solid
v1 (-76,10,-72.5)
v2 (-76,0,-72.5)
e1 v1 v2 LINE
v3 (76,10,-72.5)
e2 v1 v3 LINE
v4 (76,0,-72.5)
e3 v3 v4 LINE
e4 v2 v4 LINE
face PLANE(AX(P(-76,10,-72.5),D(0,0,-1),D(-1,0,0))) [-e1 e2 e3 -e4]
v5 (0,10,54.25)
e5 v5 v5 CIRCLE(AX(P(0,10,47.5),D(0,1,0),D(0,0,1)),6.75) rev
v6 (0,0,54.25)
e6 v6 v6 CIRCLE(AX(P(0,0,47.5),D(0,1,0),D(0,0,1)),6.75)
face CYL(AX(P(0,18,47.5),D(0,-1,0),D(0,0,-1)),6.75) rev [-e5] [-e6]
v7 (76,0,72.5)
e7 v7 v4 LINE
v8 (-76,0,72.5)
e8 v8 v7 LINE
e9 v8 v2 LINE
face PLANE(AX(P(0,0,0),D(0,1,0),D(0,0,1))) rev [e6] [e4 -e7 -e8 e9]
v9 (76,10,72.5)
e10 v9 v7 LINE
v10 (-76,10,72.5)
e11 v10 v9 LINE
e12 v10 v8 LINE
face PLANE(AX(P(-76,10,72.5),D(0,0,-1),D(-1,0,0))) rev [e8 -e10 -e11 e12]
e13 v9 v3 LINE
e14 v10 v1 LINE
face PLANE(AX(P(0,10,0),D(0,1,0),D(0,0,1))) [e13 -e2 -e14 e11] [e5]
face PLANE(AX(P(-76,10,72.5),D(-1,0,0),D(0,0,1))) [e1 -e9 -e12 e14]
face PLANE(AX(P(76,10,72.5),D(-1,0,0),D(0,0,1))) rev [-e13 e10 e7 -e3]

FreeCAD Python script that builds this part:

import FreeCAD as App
import Part
import Sketcher
from FreeCAD import Vector
Q = App.Units.Quantity


def add_polygon(sketch, points):
    """Adds a closed chain of lines whose ends are joined by coincident constraints."""
    first, n = sketch.GeometryCount, len(points)
    for a, b in zip(points, points[1:] + points[:1]):
        sketch.addGeometry(Part.LineSegment(App.Vector(*a, 0), App.Vector(*b, 0)), False)
    for i in range(n):
        sketch.addConstraint(Sketcher.Constraint("Coincident", first + i, 2, first + (i + 1) % n, 1))

doc = App.newDocument("Part")
body = doc.addObject("PartDesign::Body", "Body")

# Sketch on XZ plane
sketch1 = body.newObject("Sketcher::SketchObject", "Sketch")
sketch1.AttachmentSupport = (doc.getObject("XZ_Plane"), [""])
sketch1.MapMode = "FlatFace"
add_polygon(sketch1, [(-76, -72), (-76, 72), (76, 72), (76, -72)])  # lines 0-3
sketch1.addConstraint(Sketcher.Constraint("Vertical", 0))
sketch1.addConstraint(Sketcher.Constraint("Horizontal", 1))
sketch1.addConstraint(Sketcher.Constraint("Vertical", 2))
sketch1.addConstraint(Sketcher.Constraint("Horizontal", 3))
sketch1.addConstraint(Sketcher.Constraint("Symmetric", 0, 2, 2, 2, -1, 1))
sketch1.addConstraint(Sketcher.Constraint("DistanceX", 1, 1, 1, 2, Q("152 mm")))
sketch1.addConstraint(Sketcher.Constraint("DistanceY", 0, 1, 0, 2, Q("145 mm")))
pad1 = body.newObject("PartDesign::Pad", "Pad")
pad1.Profile = sketch1
pad1.Length = 10
pad1.Reversed = True

# Sketch on XZ plane
sketch2 = body.newObject("Sketcher::SketchObject", "Sketch001")
sketch2.AttachmentSupport = (doc.getObject("XZ_Plane"), [""])
sketch2.MapMode = "FlatFace"
sketch2.addGeometry(Part.Circle(Vector(0, 48, 0), Vector(0, 0, 1), 7), False)
sketch2.addConstraint(Sketcher.Constraint("PointOnObject", 0, 3, -2))
sketch2.addConstraint(Sketcher.Constraint("Diameter", 0, Q("13.5 mm")))
sketch2.addConstraint(Sketcher.Constraint("DistanceY", -1, 1, 0, 3, Q("47.5 mm")))
pocket1 = body.newObject("PartDesign::Pocket", "Pocket")
pocket1.Profile = sketch2
pocket1.Length = 18

doc.recompute()
